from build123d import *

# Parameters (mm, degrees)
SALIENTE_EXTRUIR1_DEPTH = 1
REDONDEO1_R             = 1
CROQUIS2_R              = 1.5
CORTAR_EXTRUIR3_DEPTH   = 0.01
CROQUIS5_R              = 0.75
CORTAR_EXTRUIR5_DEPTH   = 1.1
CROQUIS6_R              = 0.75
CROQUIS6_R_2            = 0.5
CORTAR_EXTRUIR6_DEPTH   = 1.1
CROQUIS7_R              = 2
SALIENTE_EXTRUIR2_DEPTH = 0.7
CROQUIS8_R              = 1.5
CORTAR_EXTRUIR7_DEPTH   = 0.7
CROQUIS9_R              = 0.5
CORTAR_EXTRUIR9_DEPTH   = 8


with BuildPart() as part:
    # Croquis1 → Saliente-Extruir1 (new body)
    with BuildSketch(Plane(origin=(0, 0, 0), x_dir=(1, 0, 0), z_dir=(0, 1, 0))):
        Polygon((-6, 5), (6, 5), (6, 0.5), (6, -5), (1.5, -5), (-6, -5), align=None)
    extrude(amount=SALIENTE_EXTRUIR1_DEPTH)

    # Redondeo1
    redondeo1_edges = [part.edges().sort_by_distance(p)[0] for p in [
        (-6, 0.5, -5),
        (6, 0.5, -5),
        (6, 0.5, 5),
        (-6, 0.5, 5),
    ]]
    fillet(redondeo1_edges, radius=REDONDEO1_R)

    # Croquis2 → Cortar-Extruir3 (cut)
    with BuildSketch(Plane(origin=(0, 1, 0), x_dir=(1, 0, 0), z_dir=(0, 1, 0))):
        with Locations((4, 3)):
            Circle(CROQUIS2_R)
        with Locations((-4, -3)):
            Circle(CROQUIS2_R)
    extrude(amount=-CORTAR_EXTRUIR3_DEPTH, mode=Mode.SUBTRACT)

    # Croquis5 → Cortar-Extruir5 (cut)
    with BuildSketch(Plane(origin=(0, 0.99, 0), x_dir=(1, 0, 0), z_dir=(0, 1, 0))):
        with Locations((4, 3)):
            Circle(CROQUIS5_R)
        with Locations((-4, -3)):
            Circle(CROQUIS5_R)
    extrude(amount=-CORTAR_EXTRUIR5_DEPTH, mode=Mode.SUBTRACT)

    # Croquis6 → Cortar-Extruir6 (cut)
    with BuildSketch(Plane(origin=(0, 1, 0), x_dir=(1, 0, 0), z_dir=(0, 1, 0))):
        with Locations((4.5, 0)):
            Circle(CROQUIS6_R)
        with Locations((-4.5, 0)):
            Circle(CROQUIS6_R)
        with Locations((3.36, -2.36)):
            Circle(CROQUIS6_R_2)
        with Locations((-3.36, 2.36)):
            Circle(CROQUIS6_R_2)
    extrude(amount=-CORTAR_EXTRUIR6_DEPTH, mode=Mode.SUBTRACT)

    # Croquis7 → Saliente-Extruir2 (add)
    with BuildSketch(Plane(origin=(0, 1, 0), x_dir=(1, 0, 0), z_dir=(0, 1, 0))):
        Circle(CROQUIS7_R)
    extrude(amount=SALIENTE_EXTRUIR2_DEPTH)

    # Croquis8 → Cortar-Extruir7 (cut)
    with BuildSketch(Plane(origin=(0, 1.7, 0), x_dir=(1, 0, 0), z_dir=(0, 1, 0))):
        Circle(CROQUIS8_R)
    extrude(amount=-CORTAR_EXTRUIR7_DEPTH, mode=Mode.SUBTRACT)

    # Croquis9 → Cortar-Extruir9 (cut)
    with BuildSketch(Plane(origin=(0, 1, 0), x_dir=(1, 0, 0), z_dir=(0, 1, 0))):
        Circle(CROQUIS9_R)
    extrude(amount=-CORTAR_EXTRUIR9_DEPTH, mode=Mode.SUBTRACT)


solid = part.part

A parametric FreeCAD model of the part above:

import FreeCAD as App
import Part
import Sketcher
from FreeCAD import Vector


def edges_at(feature, points):
    """Names of the edges that pass closest to the given points."""
    edges = feature.Shape.Edges
    near = lambda p: min(range(len(edges)), key=lambda i: edges[i].distToShape(Part.Vertex(*p))[0])
    return sorted({f"Edge{near(p) + 1}" for p in points})

doc = App.newDocument("Part")
body = doc.addObject("PartDesign::Body", "Body")

sketch1 = body.newObject("Sketcher::SketchObject", "Sketch")
sketch1.AttachmentSupport = (doc.getObject("XZ_Plane"), [""])
sketch1.MapMode = "FlatFace"
sketch1.addGeometry(Part.LineSegment(Vector(6, -5, 0), Vector(-6, -5, 0)), False)
sketch1.addGeometry(Part.LineSegment(Vector(-6, -5, 0), Vector(-6, 5, 0)), False)
sketch1.addGeometry(Part.LineSegment(Vector(-6, 5, 0), Vector(6, 5, 0)), False)
sketch1.addGeometry(Part.LineSegment(Vector(6, 5, 0), Vector(6, -5, 0)), False)
sketch1.addConstraint(Sketcher.Constraint("Coincident", 0, 2, 1, 1))
sketch1.addConstraint(Sketcher.Constraint("Coincident", 1, 2, 2, 1))
sketch1.addConstraint(Sketcher.Constraint("Coincident", 2, 2, 3, 1))
sketch1.addConstraint(Sketcher.Constraint("Coincident", 3, 2, 0, 1))
sketch1.addConstraint(Sketcher.Constraint("Horizontal", 0))
sketch1.addConstraint(Sketcher.Constraint("Vertical", 1))
sketch1.addConstraint(Sketcher.Constraint("Horizontal", 2))
sketch1.addConstraint(Sketcher.Constraint("Vertical", 3))
sketch1.addConstraint(Sketcher.Constraint("Symmetric", 0, 2, 2, 2, -1, 1))
sketch1.addConstraint(Sketcher.Constraint("DistanceX", 0, 2, 0, 1, 12.0))
sketch1.addConstraint(Sketcher.Constraint("DistanceY", 1, 1, 1, 2, 10.0))
pad1 = body.newObject("PartDesign::Pad", "Pad")
pad1.Profile = sketch1
pad1.Length = 1
pad1.Reversed = True
doc.recompute()

fillet = body.newObject("PartDesign::Fillet", "Fillet")
fillet.Base = (pad1, edges_at(pad1, [
    (-6, 0.5, -5),
    (6, 0.5, -5),
    (6, 0.5, 5),
    (-6, 0.5, 5),
]))
fillet.Radius = 1

sketch2 = body.newObject("Sketcher::SketchObject", "Sketch001")
sketch2.AttachmentSupport = (doc.getObject("XZ_Plane"), [""])
sketch2.MapMode = "FlatFace"
sketch2.AttachmentOffset = App.Placement(Vector(0, 0, -1), App.Rotation())
sketch2.addGeometry(Part.Circle(Vector(4, -3, 0), Vector(0, 0, 1), 1.5), False)
sketch2.addGeometry(Part.Circle(Vector(-4, 3, 0), Vector(0, 0, 1), 1.5), False)
sketch2.addConstraint(Sketcher.Constraint("Equal", 0, 1))
sketch2.addConstraint(Sketcher.Constraint("Symmetric", 0, 3, 1, 3, -1, 1))
sketch2.addConstraint(Sketcher.Constraint("Diameter", 0, 3.0))
sketch2.addConstraint(Sketcher.Constraint("DistanceX", -1, 1, 0, 3, 4.0))
sketch2.addConstraint(Sketcher.Constraint("DistanceY", 0, 3, -1, 1, 3.0))
pocket1 = body.newObject("PartDesign::Pocket", "Pocket")
pocket1.Profile = sketch2
pocket1.Length = 0.01
pocket1.Reversed = True

sketch3 = body.newObject("Sketcher::SketchObject", "Sketch002")
sketch3.AttachmentSupport = (doc.getObject("XZ_Plane"), [""])
sketch3.MapMode = "FlatFace"
sketch3.AttachmentOffset = App.Placement(Vector(0, 0, -0.99), App.Rotation())
sketch3.addGeometry(Part.Circle(Vector(4, -3, 0), Vector(0, 0, 1), 0.8), False)
sketch3.addGeometry(Part.Circle(Vector(-4, 3, 0), Vector(0, 0, 1), 0.8), False)
sketch3.addConstraint(Sketcher.Constraint("Equal", 0, 1))
sketch3.addConstraint(Sketcher.Constraint("Symmetric", 0, 3, 1, 3, -1, 1))
sketch3.addConstraint(Sketcher.Constraint("Diameter", 0, 1.5))
sketch3.addConstraint(Sketcher.Constraint("DistanceX", -1, 1, 0, 3, 4.0))
sketch3.addConstraint(Sketcher.Constraint("DistanceY", 0, 3, -1, 1, 3.0))
pocket2 = body.newObject("PartDesign::Pocket", "Pocket001")
pocket2.Profile = sketch3
pocket2.Length = 1.1
pocket2.Reversed = True

sketch4 = body.newObject("Sketcher::SketchObject", "Sketch003")
sketch4.AttachmentSupport = (doc.getObject("XZ_Plane"), [""])
sketch4.MapMode = "FlatFace"
sketch4.AttachmentOffset = App.Placement(Vector(0, 0, -1), App.Rotation())
sketch4.addGeometry(Part.Circle(Vector(4.5, 0, 0), Vector(0, 0, 1), 0.8), False)
sketch4.addGeometry(Part.Circle(Vector(-4.5, 0, 0), Vector(0, 0, 1), 0.8), False)
sketch4.addGeometry(Part.Circle(Vector(3.4, 2.4, 0), Vector(0, 0, 1), 0.5), False)
sketch4.addGeometry(Part.Circle(Vector(-3.4, -2.4, 0), Vector(0, 0, 1), 0.5), False)
sketch4.addConstraint(Sketcher.Constraint("Equal", 0, 1))
sketch4.addConstraint(Sketcher.Constraint("Equal", 2, 3))
sketch4.addConstraint(Sketcher.Constraint("Symmetric", 0, 3, 1, 3, -1, 1))
sketch4.addConstraint(Sketcher.Constraint("Symmetric", 2, 3, 3, 3, -1, 1))
sketch4.addConstraint(Sketcher.Constraint("PointOnObject", 0, 3, -1))
sketch4.addConstraint(Sketcher.Constraint("Diameter", 2, 1.0))
sketch4.addConstraint(Sketcher.Constraint("Diameter", 0, 1.5))
sketch4.addConstraint(Sketcher.Constraint("DistanceX", 1, 3, 0, 3, 9.0))
sketch4.addConstraint(Sketcher.Constraint("DistanceX", -1, 1, 2, 3, 3.36))
sketch4.addConstraint(Sketcher.Constraint("DistanceY", -1, 1, 2, 3, 2.36))
pocket3 = body.newObject("PartDesign::Pocket", "Pocket002")
pocket3.Profile = sketch4
pocket3.Length = 1.1
pocket3.Reversed = True

sketch5 = body.newObject("Sketcher::SketchObject", "Sketch004")
sketch5.AttachmentSupport = (doc.getObject("XZ_Plane"), [""])
sketch5.MapMode = "FlatFace"
sketch5.AttachmentOffset = App.Placement(Vector(0, 0, -1), App.Rotation())
sketch5.addGeometry(Part.Circle(Vector(0, 0, 0), Vector(0, 0, 1), 2), False)
sketch5.addConstraint(Sketcher.Constraint("Coincident", 0, 3, -1, 1))
sketch5.addConstraint(Sketcher.Constraint("Diameter", 0, 4.0))
pad2 = body.newObject("PartDesign::Pad", "Pad001")
pad2.Profile = sketch5
pad2.Length = 0.7
pad2.Reversed = True

sketch6 = body.newObject("Sketcher::SketchObject", "Sketch005")
sketch6.AttachmentSupport = (doc.getObject("XZ_Plane"), [""])
sketch6.MapMode = "FlatFace"
sketch6.AttachmentOffset = App.Placement(Vector(0, 0, -1.7), App.Rotation())
sketch6.addGeometry(Part.Circle(Vector(0, 0, 0), Vector(0, 0, 1), 1.5), False)
sketch6.addConstraint(Sketcher.Constraint("Coincident", 0, 3, -1, 1))
sketch6.addConstraint(Sketcher.Constraint("Diameter", 0, 3.0))
pocket4 = body.newObject("PartDesign::Pocket", "Pocket003")
pocket4.Profile = sketch6
pocket4.Length = 0.7
pocket4.Reversed = True

sketch7 = body.newObject("Sketcher::SketchObject", "Sketch006")
sketch7.AttachmentSupport = (doc.getObject("XZ_Plane"), [""])
sketch7.MapMode = "FlatFace"
sketch7.AttachmentOffset = App.Placement(Vector(0, 0, -1), App.Rotation())
sketch7.addGeometry(Part.Circle(Vector(0, 0, 0), Vector(0, 0, 1), 0.5), False)
sketch7.addConstraint(Sketcher.Constraint("Coincident", 0, 3, -1, 1))
sketch7.addConstraint(Sketcher.Constraint("Diameter", 0, 1.0))
pocket5 = body.newObject("PartDesign::Pocket", "Pocket004")
pocket5.Profile = sketch7
pocket5.Length = 8
pocket5.Reversed = True

doc.recompute()
